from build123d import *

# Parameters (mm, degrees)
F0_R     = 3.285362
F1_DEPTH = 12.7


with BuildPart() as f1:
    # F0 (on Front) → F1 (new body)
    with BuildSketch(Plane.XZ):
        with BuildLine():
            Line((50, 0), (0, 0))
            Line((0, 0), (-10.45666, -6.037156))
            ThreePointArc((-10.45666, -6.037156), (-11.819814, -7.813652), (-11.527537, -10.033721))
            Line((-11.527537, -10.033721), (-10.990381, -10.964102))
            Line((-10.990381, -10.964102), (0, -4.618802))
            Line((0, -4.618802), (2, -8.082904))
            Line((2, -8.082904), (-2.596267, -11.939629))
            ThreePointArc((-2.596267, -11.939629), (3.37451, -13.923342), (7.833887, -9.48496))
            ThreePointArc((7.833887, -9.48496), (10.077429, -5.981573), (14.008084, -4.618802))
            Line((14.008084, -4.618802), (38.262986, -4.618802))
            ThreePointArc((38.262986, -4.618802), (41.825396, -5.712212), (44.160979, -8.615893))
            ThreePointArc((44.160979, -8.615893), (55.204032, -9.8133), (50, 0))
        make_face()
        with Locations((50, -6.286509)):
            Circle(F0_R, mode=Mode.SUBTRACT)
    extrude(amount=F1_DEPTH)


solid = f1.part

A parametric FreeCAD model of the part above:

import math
import FreeCAD as App
import Part
import Sketcher

V = App.Vector
Q = App.Units.Quantity

doc = App.newDocument("Part")
body = doc.addObject("PartDesign::Body", "Body")

# Sketch on XZ plane
sketch1 = body.newObject("Sketcher::SketchObject", "Sketch")
sketch1.AttachmentSupport = (doc.getObject("XZ_Plane"), [""])
sketch1.MapMode = "FlatFace"
sketch1.addGeometry(Part.LineSegment(V(50, 0, 0), V(0, 0, 0)), False)
sketch1.addGeometry(Part.LineSegment(V(0, 0, 0), V(-10.45666, -6.037156, 0)), False)
sketch1.addGeometry(Part.ArcOfCircle(Part.Circle(V(-8.993816, -8.570877, 0), V(0, 0, 1), 2.925689), math.radians(119.999994), math.radians(209.999989)), False)
sketch1.addGeometry(Part.LineSegment(V(-11.527537, -10.033721, 0), V(-10.990381, -10.964102, 0)), False)
sketch1.addGeometry(Part.LineSegment(V(-10.990381, -10.964102, 0), V(0, -4.618802, 0)), False)
sketch1.addGeometry(Part.LineSegment(V(0, -4.618802, 0), V(2, -8.082904, 0)), False)
sketch1.addGeometry(Part.LineSegment(V(2, -8.082904, 0), V(-2.596267, -11.939629, 0)), False)
sketch1.addGeometry(Part.ArcOfCircle(Part.Circle(V(2, -8.082903, 0), V(0, 0, 1), 6), math.radians(-140.000001), math.radians(-13.513597)), False)
sketch1.addGeometry(Part.ArcOfCircle(Part.Circle(V(14.008083, -10.968801, 0), V(0, 0, 1), 6.349999), math.radians(89.999994), math.radians(166.486425)), False)
sketch1.addGeometry(Part.LineSegment(V(14.008084, -4.618802, 0), V(38.262986, -4.618802, 0)), False)
sketch1.addGeometry(Part.ArcOfCircle(Part.Circle(V(38.262987, -10.968801, 0), V(0, 0, 1), 6.349999), math.radians(21.748725), math.radians(90.000007)), False)
sketch1.addGeometry(Part.ArcOfCircle(Part.Circle(V(50, -6.286509, 0), V(0, 0, 1), 6.286509), math.radians(-158.251266), math.radians(90.000003)), False)
sketch1.addGeometry(Part.Circle(V(50, -6.286509, 0), V(0, 0, 1), 3.285362), False)
sketch1.addConstraint(Sketcher.Constraint("Coincident", 0, 2, 1, 1))
sketch1.addConstraint(Sketcher.Constraint("Tangent", 1, 2, 2, 1))
sketch1.addConstraint(Sketcher.Constraint("Tangent", 2, 2, 3, 1))
sketch1.addConstraint(Sketcher.Constraint("Coincident", 3, 2, 4, 1))
sketch1.addConstraint(Sketcher.Constraint("Coincident", 4, 2, 5, 1))
sketch1.addConstraint(Sketcher.Constraint("Coincident", 5, 2, 6, 1))
sketch1.addConstraint(Sketcher.Constraint("Coincident", 6, 2, 7, 1))
sketch1.addConstraint(Sketcher.Constraint("Tangent", 7, 2, 8, 2))
sketch1.addConstraint(Sketcher.Constraint("Tangent", 8, 1, 9, 1))
sketch1.addConstraint(Sketcher.Constraint("Tangent", 9, 2, 10, 2))
sketch1.addConstraint(Sketcher.Constraint("Tangent", 10, 1, 11, 1))
sketch1.addConstraint(Sketcher.Constraint("Tangent", 11, 2, 0, 1))
sketch1.addConstraint(Sketcher.Constraint("Horizontal", 0))
sketch1.addConstraint(Sketcher.Constraint("Horizontal", 9))
sketch1.addConstraint(Sketcher.Constraint("Coincident", 0, 2, -1, 1))
sketch1.addConstraint(Sketcher.Constraint("Coincident", 12, 3, 11, 3))
sketch1.addConstraint(Sketcher.Constraint("Coincident", 5, 2, 7, 3))
sketch1.addConstraint(Sketcher.Constraint("Equal", 8, 10))
sketch1.addConstraint(Sketcher.Constraint("PointOnObject", 4, 2, -2))
sketch1.addConstraint(Sketcher.Constraint("Perpendicular", 1, 3))
sketch1.addConstraint(Sketcher.Constraint("Perpendicular", 3, 4))
sketch1.addConstraint(Sketcher.Constraint("Perpendicular", 4, 5))
sketch1.addConstraint(Sketcher.Constraint("Horizontal", 4, 2, 8, 1))
sketch1.addConstraint(Sketcher.Constraint("Radius", 7, Q("6 mm")))
sketch1.addConstraint(Sketcher.Constraint("DistanceX", 0, 2, 0, 1, Q("50 mm")))
sketch1.addConstraint(Sketcher.Constraint("Angle", 1, Q("-149.999998 deg")))
sketch1.addConstraint(Sketcher.Constraint("Angle", 6, Q("-140.000007 deg")))
sketch1.addConstraint(Sketcher.Constraint("Radius", 8, Q("6.349999 mm")))
sketch1.addConstraint(Sketcher.Constraint("Distance", 5, Q("4 mm")))
sketch1.addConstraint(Sketcher.Constraint("Radius", 2, Q("2.925689 mm")))
sketch1.addConstraint(Sketcher.Constraint("Radius", 11, Q("6.286509 mm")))
sketch1.addConstraint(Sketcher.Constraint("Diameter", 12, Q("6.570724 mm")))
sketch1.addConstraint(Sketcher.Constraint("DistanceX", 9, 1, 9, 2, Q("24.254902 mm")))
sketch1.addConstraint(Sketcher.Constraint("Distance", 4, Q("12.690599 mm")))
pad1 = body.newObject("PartDesign::Pad", "Pad")
pad1.Profile = sketch1
pad1.Length = 12.7

doc.recompute()
